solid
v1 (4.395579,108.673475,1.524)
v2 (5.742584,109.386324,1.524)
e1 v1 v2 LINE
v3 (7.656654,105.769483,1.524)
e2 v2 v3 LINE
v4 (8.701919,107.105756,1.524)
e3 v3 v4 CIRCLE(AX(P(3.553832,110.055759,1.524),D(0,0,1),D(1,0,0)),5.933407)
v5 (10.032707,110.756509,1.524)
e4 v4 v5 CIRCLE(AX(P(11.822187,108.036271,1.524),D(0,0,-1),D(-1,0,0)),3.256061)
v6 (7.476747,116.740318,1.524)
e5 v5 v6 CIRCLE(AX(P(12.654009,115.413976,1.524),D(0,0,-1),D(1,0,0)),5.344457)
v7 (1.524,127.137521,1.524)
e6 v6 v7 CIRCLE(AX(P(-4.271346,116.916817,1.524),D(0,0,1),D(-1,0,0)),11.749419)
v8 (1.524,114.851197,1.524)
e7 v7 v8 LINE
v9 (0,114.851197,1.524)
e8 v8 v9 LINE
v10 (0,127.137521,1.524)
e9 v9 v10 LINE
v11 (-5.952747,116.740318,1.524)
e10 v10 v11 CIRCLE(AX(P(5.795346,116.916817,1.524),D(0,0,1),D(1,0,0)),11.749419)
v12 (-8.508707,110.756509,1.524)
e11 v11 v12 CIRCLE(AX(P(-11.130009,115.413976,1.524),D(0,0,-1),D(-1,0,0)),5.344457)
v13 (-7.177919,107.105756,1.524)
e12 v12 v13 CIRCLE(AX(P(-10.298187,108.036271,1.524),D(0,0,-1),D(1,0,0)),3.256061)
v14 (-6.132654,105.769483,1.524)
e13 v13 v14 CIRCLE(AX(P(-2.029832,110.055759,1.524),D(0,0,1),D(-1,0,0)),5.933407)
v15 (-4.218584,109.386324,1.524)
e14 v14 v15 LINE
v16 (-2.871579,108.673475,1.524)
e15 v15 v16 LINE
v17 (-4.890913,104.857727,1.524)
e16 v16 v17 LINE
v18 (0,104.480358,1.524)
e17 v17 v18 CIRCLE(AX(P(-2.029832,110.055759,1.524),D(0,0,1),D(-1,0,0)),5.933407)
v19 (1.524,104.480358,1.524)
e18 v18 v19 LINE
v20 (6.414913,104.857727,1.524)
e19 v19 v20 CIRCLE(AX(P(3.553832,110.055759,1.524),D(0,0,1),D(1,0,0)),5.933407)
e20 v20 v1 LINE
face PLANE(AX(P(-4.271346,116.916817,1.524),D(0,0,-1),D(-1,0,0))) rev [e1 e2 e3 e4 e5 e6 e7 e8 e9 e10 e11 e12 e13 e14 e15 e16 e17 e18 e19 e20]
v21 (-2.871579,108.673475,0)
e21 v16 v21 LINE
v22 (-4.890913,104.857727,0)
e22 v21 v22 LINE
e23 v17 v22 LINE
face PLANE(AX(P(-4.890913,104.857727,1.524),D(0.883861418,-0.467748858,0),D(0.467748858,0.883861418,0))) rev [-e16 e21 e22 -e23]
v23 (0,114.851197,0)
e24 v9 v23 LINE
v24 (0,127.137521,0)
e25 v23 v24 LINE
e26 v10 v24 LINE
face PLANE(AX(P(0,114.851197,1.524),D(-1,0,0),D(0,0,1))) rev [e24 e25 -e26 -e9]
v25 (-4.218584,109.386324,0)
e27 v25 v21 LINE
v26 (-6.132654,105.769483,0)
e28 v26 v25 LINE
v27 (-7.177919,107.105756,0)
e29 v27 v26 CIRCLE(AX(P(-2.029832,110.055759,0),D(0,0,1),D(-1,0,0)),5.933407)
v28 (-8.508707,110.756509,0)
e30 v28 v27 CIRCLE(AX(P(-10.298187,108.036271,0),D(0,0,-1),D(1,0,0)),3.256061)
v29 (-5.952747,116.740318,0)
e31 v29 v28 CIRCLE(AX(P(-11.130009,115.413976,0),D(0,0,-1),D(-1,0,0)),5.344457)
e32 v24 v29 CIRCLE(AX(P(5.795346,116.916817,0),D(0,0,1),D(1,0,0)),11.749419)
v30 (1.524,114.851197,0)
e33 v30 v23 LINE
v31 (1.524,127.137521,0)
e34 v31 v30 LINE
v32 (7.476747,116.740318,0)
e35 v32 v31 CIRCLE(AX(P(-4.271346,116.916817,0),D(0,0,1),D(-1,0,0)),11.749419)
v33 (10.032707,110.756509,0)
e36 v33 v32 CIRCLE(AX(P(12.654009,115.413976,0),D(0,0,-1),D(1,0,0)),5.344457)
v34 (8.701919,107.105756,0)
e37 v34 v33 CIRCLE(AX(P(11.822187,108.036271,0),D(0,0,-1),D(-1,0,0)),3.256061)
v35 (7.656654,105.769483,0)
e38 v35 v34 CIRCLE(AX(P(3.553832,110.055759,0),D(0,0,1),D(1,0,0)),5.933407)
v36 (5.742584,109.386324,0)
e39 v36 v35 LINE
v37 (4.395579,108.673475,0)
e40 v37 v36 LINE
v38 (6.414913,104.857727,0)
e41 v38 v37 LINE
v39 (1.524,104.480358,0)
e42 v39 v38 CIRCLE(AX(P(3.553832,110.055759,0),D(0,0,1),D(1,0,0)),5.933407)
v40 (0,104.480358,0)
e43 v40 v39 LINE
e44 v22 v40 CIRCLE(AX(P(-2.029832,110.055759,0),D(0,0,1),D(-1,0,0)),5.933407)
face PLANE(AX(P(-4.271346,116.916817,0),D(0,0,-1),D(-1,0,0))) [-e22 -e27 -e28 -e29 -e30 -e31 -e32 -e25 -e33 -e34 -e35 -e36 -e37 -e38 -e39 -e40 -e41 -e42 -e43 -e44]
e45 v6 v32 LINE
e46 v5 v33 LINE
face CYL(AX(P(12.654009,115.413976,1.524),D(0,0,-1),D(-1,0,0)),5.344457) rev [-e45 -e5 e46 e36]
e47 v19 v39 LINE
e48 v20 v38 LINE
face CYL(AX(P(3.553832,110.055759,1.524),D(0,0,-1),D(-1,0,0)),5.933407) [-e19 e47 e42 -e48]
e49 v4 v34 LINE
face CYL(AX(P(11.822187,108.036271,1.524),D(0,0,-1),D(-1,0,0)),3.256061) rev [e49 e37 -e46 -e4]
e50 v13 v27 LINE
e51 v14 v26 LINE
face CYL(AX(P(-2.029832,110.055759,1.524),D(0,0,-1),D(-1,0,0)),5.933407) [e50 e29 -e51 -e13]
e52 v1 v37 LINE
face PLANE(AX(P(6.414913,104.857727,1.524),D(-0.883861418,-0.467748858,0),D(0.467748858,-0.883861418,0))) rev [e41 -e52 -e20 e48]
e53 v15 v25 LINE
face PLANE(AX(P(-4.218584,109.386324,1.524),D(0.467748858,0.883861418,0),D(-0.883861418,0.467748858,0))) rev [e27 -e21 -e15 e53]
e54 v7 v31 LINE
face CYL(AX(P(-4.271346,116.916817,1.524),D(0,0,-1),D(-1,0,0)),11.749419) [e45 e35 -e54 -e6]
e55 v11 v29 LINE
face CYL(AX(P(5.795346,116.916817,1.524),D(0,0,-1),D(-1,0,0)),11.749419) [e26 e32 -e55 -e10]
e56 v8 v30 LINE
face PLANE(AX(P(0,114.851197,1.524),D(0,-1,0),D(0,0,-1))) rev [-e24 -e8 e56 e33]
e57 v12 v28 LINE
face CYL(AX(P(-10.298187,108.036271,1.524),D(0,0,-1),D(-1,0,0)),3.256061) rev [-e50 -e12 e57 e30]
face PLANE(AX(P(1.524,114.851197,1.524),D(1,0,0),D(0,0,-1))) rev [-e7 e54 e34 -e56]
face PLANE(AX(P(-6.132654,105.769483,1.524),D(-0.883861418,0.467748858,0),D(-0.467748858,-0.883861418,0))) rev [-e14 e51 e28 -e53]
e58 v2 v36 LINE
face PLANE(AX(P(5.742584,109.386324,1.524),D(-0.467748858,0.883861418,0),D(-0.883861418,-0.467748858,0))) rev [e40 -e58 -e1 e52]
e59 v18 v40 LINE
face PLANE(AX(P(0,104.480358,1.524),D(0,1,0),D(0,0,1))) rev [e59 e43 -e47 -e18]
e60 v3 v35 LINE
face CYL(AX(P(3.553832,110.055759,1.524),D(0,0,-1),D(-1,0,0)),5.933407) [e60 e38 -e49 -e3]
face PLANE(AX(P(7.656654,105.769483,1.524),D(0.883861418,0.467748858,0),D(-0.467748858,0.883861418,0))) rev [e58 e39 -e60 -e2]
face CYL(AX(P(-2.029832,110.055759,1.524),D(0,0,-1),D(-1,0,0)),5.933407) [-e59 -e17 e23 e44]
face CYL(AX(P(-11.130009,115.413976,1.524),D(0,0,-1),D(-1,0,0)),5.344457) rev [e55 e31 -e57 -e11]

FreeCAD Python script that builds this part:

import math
import FreeCAD as App
import Part
import Sketcher
from FreeCAD import Vector
Q = App.Units.Quantity

doc = App.newDocument("Part")
body = doc.addObject("PartDesign::Body", "Body")

# Sketch on XY plane
sketch1 = body.newObject("Sketcher::SketchObject", "Sketch")
sketch1.AttachmentSupport = (doc.getObject("XY_Plane"), [""])
sketch1.MapMode = "FlatFace"
sketch1.addGeometry(Part.LineSegment(Vector(1.5, 114.9, 0), Vector(0, 114.9, 0)), False)
sketch1.addGeometry(Part.LineSegment(Vector(0, 114.9, 0), Vector(0, 127.1, 0)), False)
sketch1.addGeometry(Part.ArcOfCircle(Part.Circle(Vector(5.8, 116.9, 0), Vector(0, 0, 1), 11.7), math.radians(120), math.radians(181)), False)
sketch1.addGeometry(Part.ArcOfCircle(Part.Circle(Vector(-11.1, 115.4, 0), Vector(0, 0, 1), 5.3), math.radians(-61), math.radians(14)), False)
sketch1.addGeometry(Part.ArcOfCircle(Part.Circle(Vector(-10.3, 108, 0), Vector(0, 0, 1), 3.3), math.radians(-17), math.radians(57)), False)
sketch1.addGeometry(Part.ArcOfCircle(Part.Circle(Vector(-2, 110.1, 0), Vector(0, 0, 1), 5.9), math.radians(-150.19), math.radians(-133.75)), False)
sketch1.addGeometry(Part.LineSegment(Vector(-6.1, 105.8, 0), Vector(-4.2, 109.4, 0)), False)
sketch1.addGeometry(Part.LineSegment(Vector(-4.2, 109.4, 0), Vector(-2.9, 108.7, 0)), False)
sketch1.addGeometry(Part.LineSegment(Vector(-2.9, 108.7, 0), Vector(-4.9, 104.9, 0)), False)
sketch1.addGeometry(Part.ArcOfCircle(Part.Circle(Vector(-2, 110.1, 0), Vector(0, 0, 1), 5.9), math.radians(-119), math.radians(-70)), False)
sketch1.addGeometry(Part.LineSegment(Vector(0, 104.5, 0), Vector(1.5, 104.5, 0)), False)
sketch1.addGeometry(Part.ArcOfCircle(Part.Circle(Vector(3.6, 110.1, 0), Vector(0, 0, 1), 5.9), math.radians(-110), math.radians(-61)), False)
sketch1.addGeometry(Part.LineSegment(Vector(6.4, 104.9, 0), Vector(4.4, 108.7, 0)), False)
sketch1.addGeometry(Part.LineSegment(Vector(4.4, 108.7, 0), Vector(5.7, 109.4, 0)), False)
sketch1.addGeometry(Part.LineSegment(Vector(5.7, 109.4, 0), Vector(7.7, 105.8, 0)), False)
sketch1.addGeometry(Part.ArcOfCircle(Part.Circle(Vector(3.6, 110.1, 0), Vector(0, 0, 1), 5.9), math.radians(-46.25), math.radians(-29.81)), False)
sketch1.addGeometry(Part.ArcOfCircle(Part.Circle(Vector(11.8, 108, 0), Vector(0, 0, 1), 3.3), math.radians(123), math.radians(197)), False)
sketch1.addGeometry(Part.ArcOfCircle(Part.Circle(Vector(12.7, 115.4, 0), Vector(0, 0, 1), 5.3), math.radians(166), math.radians(241)), False)
sketch1.addGeometry(Part.ArcOfCircle(Part.Circle(Vector(-4.3, 116.9, 0), Vector(0, 0, 1), 11.7), math.radians(-1), math.radians(60)), False)
sketch1.addGeometry(Part.LineSegment(Vector(1.5, 127.1, 0), Vector(1.5, 114.9, 0)), False)
sketch1.addConstraint(Sketcher.Constraint("Coincident", 0, 2, 1, 1))
sketch1.addConstraint(Sketcher.Constraint("Coincident", 1, 2, 2, 1))
sketch1.addConstraint(Sketcher.Constraint("Coincident", 2, 2, 3, 2))
sketch1.addConstraint(Sketcher.Constraint("Coincident", 3, 1, 4, 2))
sketch1.addConstraint(Sketcher.Constraint("Coincident", 4, 1, 5, 1))
sketch1.addConstraint(Sketcher.Constraint("Coincident", 5, 2, 6, 1))
sketch1.addConstraint(Sketcher.Constraint("Coincident", 6, 2, 7, 1))
sketch1.addConstraint(Sketcher.Constraint("Coincident", 7, 2, 8, 1))
sketch1.addConstraint(Sketcher.Constraint("Coincident", 8, 2, 9, 1))
sketch1.addConstraint(Sketcher.Constraint("Coincident", 9, 2, 10, 1))
sketch1.addConstraint(Sketcher.Constraint("Coincident", 10, 2, 11, 1))
sketch1.addConstraint(Sketcher.Constraint("Coincident", 11, 2, 12, 1))
sketch1.addConstraint(Sketcher.Constraint("Coincident", 12, 2, 13, 1))
sketch1.addConstraint(Sketcher.Constraint("Coincident", 13, 2, 14, 1))
sketch1.addConstraint(Sketcher.Constraint("Coincident", 14, 2, 15, 1))
sketch1.addConstraint(Sketcher.Constraint("Coincident", 15, 2, 16, 2))
sketch1.addConstraint(Sketcher.Constraint("Coincident", 16, 1, 17, 2))
sketch1.addConstraint(Sketcher.Constraint("Coincident", 17, 1, 18, 1))
sketch1.addConstraint(Sketcher.Constraint("Coincident", 18, 2, 19, 1))
sketch1.addConstraint(Sketcher.Constraint("Coincident", 19, 2, 0, 1))
sketch1.addConstraint(Sketcher.Constraint("Horizontal", 0))
sketch1.addConstraint(Sketcher.Constraint("Vertical", 1))
sketch1.addConstraint(Sketcher.Constraint("Horizontal", 10))
sketch1.addConstraint(Sketcher.Constraint("Vertical", 19))
sketch1.addConstraint(Sketcher.Constraint("Coincident", 9, 3, 5, 3))
sketch1.addConstraint(Sketcher.Constraint("Coincident", 15, 3, 11, 3))
sketch1.addConstraint(Sketcher.Constraint("Equal", 5, 9))
sketch1.addConstraint(Sketcher.Constraint("Equal", 9, 11))
sketch1.addConstraint(Sketcher.Constraint("Equal", 11, 15))
sketch1.addConstraint(Sketcher.Constraint("Equal", 4, 16))
sketch1.addConstraint(Sketcher.Constraint("Equal", 3, 17))
sketch1.addConstraint(Sketcher.Constraint("Equal", 2, 18))
sketch1.addConstraint(Sketcher.Constraint("PointOnObject", 0, 2, -2))
sketch1.addConstraint(Sketcher.Constraint("PointOnObject", 9, 2, -2))
sketch1.addConstraint(Sketcher.Constraint("Perpendicular", 6, 7))
sketch1.addConstraint(Sketcher.Constraint("Perpendicular", 7, 8))
sketch1.addConstraint(Sketcher.Constraint("Perpendicular", 12, 13))
sketch1.addConstraint(Sketcher.Constraint("Perpendicular", 13, 14))
sketch1.addConstraint(Sketcher.Constraint("Horizontal", 9, 3, 11, 3))
sketch1.addConstraint(Sketcher.Constraint("Horizontal", 4, 3, 16, 3))
sketch1.addConstraint(Sketcher.Constraint("Horizontal", 3, 3, 17, 3))
sketch1.addConstraint(Sketcher.Constraint("Horizontal", 2, 3, 18, 3))
sketch1.addConstraint(Sketcher.Constraint("Horizontal", 8, 2, 11, 2))
sketch1.addConstraint(Sketcher.Constraint("Horizontal", 7, 2, 12, 2))
sketch1.addConstraint(Sketcher.Constraint("Horizontal", 6, 2, 13, 2))
sketch1.addConstraint(Sketcher.Constraint("Horizontal", 5, 2, 14, 2))
sketch1.addConstraint(Sketcher.Constraint("Horizontal", 4, 1, 15, 2))
sketch1.addConstraint(Sketcher.Constraint("Horizontal", 3, 1, 16, 1))
sketch1.addConstraint(Sketcher.Constraint("Horizontal", 2, 2, 17, 1))
sketch1.addConstraint(Sketcher.Constraint("Horizontal", 1, 2, 18, 2))
sketch1.addConstraint(Sketcher.Constraint("DistanceX", 0, 2, 0, 1, Q("0.06 in")))
sketch1.addConstraint(Sketcher.Constraint("Distance", 7, Q("0.06 in")))
sketch1.addConstraint(Sketcher.Constraint("Radius", 2, Q("11.749419 mm")))
sketch1.addConstraint(Sketcher.Constraint("Radius", 4, Q("3.256061 mm")))
sketch1.addConstraint(Sketcher.Constraint("DistanceY", -1, 1, 9, 2, Q("4.1133999 in")))
sketch1.addConstraint(Sketcher.Constraint("Radius", 3, Q("5.344457 mm")))
sketch1.addConstraint(Sketcher.Constraint("Radius", 5, Q("5.933407 mm")))
sketch1.addConstraint(Sketcher.Constraint("DistanceX", 2, 2, 18, 3, Q("1.681401 mm")))
sketch1.addConstraint(Sketcher.Constraint("DistanceY", 2, 2, 18, 3, Q("0.176498 mm")))
sketch1.addConstraint(Sketcher.Constraint("DistanceX", 3, 3, 3, 1, Q("2.621301 mm")))
sketch1.addConstraint(Sketcher.Constraint("DistanceY", 9, 2, 9, 3, Q("5.575402 mm")))
sketch1.addConstraint(Sketcher.Constraint("Distance", 6, Q("4.092091 mm")))
sketch1.addConstraint(Sketcher.Constraint("DistanceY", 1, 1, 1, 2, Q("12.286324 mm")))
sketch1.addConstraint(Sketcher.Constraint("DistanceX", 3, 3, -1, 1, Q("11.130009 mm")))
sketch1.addConstraint(Sketcher.Constraint("DistanceY", -1, 1, 4, 3, Q("108.036271 mm")))
sketch1.addConstraint(Sketcher.Constraint("DistanceY", -1, 1, 1, 2, Q("127.137521 mm")))
sketch1.addConstraint(Sketcher.Constraint("DistanceX", 7, 2, -1, 1, Q("2.871579 mm")))
sketch1.addConstraint(Sketcher.Constraint("DistanceY", 5, 2, 4, 3, Q("2.266788 mm")))
pad1 = body.newObject("PartDesign::Pad", "Pad")
pad1.Profile = sketch1
pad1.Length = Q("0.06 in")

doc.recompute()
